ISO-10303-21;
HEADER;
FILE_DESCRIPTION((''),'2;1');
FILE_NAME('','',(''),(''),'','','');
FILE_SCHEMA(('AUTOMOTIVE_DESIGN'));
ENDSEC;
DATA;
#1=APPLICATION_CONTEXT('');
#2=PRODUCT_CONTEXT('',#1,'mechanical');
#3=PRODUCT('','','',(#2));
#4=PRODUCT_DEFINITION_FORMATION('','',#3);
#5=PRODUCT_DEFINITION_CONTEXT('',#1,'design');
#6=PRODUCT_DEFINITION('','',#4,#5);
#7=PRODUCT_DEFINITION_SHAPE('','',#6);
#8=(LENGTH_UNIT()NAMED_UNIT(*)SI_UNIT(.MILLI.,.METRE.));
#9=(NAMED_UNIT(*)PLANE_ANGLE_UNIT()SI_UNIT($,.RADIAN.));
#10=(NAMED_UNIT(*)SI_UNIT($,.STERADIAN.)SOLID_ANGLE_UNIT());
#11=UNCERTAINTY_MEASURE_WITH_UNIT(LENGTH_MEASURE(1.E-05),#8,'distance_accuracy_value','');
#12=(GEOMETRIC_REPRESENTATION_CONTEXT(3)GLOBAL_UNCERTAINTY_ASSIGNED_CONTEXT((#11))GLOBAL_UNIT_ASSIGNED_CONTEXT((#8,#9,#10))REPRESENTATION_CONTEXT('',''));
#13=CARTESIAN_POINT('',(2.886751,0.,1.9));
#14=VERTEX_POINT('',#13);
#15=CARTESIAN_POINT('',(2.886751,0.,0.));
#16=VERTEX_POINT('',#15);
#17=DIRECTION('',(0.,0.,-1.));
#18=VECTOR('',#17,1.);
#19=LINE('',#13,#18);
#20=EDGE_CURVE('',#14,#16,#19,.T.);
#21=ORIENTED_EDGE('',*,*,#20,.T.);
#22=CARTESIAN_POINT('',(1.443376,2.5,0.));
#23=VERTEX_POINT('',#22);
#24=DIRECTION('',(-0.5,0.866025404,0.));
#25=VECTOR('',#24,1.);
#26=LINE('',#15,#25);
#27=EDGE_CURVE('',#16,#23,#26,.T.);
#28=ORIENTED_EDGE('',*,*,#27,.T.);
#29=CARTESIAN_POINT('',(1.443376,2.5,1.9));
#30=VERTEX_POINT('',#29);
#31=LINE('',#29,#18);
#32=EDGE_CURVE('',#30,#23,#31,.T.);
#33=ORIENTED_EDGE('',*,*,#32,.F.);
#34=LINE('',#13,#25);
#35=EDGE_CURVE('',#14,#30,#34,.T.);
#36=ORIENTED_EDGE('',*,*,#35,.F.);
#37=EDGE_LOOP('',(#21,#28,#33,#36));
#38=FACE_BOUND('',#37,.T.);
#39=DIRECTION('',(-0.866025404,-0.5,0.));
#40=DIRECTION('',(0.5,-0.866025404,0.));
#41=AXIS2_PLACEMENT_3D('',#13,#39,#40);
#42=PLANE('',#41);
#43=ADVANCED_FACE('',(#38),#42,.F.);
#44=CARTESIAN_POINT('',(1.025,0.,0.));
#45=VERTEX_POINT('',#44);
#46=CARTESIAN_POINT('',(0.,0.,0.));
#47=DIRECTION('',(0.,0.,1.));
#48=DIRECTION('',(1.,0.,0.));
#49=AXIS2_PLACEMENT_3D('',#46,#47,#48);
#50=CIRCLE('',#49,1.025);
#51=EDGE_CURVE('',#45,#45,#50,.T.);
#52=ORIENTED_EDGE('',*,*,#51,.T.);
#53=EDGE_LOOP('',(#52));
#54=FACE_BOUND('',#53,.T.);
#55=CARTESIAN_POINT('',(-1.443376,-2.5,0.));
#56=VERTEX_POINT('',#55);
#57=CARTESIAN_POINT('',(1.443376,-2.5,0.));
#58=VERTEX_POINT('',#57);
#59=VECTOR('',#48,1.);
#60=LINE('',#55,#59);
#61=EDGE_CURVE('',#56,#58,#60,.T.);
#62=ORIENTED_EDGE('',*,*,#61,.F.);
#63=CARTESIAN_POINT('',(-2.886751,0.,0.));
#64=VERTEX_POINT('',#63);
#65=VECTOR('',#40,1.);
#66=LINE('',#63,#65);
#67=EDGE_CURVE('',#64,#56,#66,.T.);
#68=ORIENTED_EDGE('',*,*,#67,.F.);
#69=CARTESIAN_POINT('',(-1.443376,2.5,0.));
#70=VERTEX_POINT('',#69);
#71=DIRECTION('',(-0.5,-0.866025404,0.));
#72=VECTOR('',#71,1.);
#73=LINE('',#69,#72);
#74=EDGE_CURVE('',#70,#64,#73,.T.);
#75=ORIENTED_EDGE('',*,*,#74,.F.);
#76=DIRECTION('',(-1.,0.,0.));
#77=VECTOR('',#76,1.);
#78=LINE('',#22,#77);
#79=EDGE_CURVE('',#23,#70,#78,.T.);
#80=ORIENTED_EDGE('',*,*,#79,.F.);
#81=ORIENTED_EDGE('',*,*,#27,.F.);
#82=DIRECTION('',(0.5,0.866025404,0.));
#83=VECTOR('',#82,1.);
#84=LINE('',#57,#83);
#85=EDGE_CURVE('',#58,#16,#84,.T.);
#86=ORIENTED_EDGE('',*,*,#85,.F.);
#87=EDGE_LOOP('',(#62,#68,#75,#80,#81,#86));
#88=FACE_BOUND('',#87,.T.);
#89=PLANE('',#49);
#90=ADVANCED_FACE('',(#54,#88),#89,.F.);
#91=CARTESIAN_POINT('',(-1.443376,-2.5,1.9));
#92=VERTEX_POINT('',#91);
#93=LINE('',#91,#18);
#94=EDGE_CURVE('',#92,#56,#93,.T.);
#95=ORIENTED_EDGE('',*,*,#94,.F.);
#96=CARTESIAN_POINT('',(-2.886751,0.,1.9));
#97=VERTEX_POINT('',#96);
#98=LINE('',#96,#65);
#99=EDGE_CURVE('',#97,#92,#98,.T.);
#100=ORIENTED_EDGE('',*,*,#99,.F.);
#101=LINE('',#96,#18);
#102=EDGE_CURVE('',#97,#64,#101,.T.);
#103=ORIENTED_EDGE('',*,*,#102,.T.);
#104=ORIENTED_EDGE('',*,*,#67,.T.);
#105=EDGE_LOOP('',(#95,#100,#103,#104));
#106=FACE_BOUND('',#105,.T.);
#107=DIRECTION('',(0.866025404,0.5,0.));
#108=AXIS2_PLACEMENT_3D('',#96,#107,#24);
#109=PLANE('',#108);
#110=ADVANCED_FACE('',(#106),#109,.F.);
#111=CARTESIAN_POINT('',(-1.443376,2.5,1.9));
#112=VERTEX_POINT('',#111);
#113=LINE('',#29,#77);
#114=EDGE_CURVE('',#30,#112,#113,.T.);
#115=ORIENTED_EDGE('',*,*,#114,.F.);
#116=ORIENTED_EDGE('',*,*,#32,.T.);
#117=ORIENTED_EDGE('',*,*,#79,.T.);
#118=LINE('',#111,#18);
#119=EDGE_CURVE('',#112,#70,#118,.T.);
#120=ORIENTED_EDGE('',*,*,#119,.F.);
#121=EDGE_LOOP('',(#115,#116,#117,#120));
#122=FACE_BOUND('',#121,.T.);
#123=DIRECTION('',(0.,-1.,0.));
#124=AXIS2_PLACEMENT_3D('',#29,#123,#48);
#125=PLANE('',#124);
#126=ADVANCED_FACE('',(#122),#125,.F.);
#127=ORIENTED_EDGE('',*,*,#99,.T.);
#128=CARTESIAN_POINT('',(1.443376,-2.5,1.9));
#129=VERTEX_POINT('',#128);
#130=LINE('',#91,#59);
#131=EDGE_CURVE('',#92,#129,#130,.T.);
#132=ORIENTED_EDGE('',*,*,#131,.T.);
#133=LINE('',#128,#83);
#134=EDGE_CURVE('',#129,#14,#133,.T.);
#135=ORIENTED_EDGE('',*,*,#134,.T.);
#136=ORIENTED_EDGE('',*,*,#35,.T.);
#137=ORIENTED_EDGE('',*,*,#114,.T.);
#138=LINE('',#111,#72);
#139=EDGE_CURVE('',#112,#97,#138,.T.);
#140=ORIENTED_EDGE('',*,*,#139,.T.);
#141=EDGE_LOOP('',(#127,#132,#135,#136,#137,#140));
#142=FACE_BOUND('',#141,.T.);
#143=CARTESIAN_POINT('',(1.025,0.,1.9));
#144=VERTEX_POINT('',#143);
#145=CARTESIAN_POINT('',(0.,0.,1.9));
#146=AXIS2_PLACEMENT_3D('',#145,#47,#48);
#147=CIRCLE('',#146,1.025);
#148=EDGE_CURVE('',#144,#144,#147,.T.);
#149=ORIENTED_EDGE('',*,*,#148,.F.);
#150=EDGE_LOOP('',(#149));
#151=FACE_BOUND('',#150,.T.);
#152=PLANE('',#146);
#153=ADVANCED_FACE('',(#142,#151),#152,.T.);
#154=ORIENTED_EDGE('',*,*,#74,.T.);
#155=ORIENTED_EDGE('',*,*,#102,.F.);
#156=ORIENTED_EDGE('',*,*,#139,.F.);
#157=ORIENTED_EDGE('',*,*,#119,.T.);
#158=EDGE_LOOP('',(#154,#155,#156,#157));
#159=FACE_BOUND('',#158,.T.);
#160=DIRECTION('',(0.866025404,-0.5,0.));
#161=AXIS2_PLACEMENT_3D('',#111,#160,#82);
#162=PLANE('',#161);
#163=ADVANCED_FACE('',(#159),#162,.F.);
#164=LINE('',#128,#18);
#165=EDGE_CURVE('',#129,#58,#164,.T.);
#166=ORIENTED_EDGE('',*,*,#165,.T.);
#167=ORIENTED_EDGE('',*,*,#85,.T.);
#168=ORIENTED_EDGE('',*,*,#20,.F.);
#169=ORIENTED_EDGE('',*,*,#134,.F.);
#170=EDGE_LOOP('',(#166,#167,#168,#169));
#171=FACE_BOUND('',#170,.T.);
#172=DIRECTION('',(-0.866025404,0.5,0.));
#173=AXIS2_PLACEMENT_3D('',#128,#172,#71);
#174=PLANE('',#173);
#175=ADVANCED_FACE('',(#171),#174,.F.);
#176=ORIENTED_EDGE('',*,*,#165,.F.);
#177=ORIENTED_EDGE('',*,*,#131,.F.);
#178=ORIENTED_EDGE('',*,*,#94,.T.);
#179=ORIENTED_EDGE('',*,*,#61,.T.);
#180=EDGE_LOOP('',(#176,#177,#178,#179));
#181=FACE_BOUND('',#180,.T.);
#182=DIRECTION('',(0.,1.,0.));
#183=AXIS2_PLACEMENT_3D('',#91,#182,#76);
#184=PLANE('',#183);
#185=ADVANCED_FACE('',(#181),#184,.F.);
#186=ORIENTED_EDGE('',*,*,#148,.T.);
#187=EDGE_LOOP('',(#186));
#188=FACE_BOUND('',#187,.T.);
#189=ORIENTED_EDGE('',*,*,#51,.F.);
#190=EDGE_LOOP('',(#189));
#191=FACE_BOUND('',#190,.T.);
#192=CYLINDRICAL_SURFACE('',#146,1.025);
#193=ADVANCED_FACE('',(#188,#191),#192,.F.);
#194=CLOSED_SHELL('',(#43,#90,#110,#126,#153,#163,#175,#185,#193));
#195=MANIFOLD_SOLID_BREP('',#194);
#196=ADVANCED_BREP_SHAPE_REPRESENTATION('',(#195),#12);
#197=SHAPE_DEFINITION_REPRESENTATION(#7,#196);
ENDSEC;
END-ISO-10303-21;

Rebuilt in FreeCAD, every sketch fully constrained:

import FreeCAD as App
import Part
import Sketcher

V = App.Vector
Q = App.Units.Quantity

doc = App.newDocument("Part")
body = doc.addObject("PartDesign::Body", "Body")

sketch1 = body.newObject("Sketcher::SketchObject", "Sketch")
sketch1.AttachmentSupport = (doc.getObject("XY_Plane"), [""])
sketch1.MapMode = "FlatFace"
sketch1.addGeometry(Part.LineSegment(V(-2.9, 0, 0), V(-1.4, -2.5, 0)), False)
sketch1.addGeometry(Part.LineSegment(V(-1.4, -2.5, 0), V(1.4, -2.5, 0)), False)
sketch1.addGeometry(Part.LineSegment(V(1.4, -2.5, 0), V(2.9, 0, 0)), False)
sketch1.addGeometry(Part.LineSegment(V(2.9, 0, 0), V(1.4, 2.5, 0)), False)
sketch1.addGeometry(Part.LineSegment(V(1.4, 2.5, 0), V(-1.4, 2.5, 0)), False)
sketch1.addGeometry(Part.LineSegment(V(-1.4, 2.5, 0), V(-2.9, 0, 0)), False)
sketch1.addConstraint(Sketcher.Constraint("Coincident", 0, 2, 1, 1))
sketch1.addConstraint(Sketcher.Constraint("Coincident", 1, 2, 2, 1))
sketch1.addConstraint(Sketcher.Constraint("Coincident", 2, 2, 3, 1))
sketch1.addConstraint(Sketcher.Constraint("Coincident", 3, 2, 4, 1))
sketch1.addConstraint(Sketcher.Constraint("Coincident", 4, 2, 5, 1))
sketch1.addConstraint(Sketcher.Constraint("Coincident", 5, 2, 0, 1))
sketch1.addConstraint(Sketcher.Constraint("Horizontal", 1))
sketch1.addConstraint(Sketcher.Constraint("Horizontal", 4))
sketch1.addConstraint(Sketcher.Constraint("Symmetric", 0, 2, 3, 2, -1, 1))
sketch1.addConstraint(Sketcher.Constraint("Symmetric", 2, 2, 5, 2, -1, 1))
sketch1.addConstraint(Sketcher.Constraint("PointOnObject", 2, 2, -1))
sketch1.addConstraint(Sketcher.Constraint("Parallel", 2, 5))
sketch1.addConstraint(Sketcher.Constraint("Vertical", 1, 2, 3, 2))
sketch1.addConstraint(Sketcher.Constraint("Angle", 0, Q("-60 deg")))
sketch1.addConstraint(Sketcher.Constraint("DistanceY", 1, 2, 3, 2, Q("5 mm")))
sketch1.addConstraint(Sketcher.Constraint("DistanceX", 1, 1, 1, 2, Q("2.886751 mm")))
pad1 = body.newObject("PartDesign::Pad", "Pad")
pad1.Profile = sketch1
pad1.Length = 1.9

sketch2 = body.newObject("Sketcher::SketchObject", "Sketch001")
sketch2.AttachmentSupport = (doc.getObject("XY_Plane"), [""])
sketch2.MapMode = "FlatFace"
sketch2.AttachmentOffset = App.Placement(V(0, 0, 1.9), App.Rotation())
sketch2.addGeometry(Part.Circle(V(0, 0, 0), V(0, 0, 1), 1), False)
sketch2.addConstraint(Sketcher.Constraint("Coincident", 0, 3, -1, 1))
sketch2.addConstraint(Sketcher.Constraint("Diameter", 0, Q("2.05 mm")))
doc.recompute()
hole = body.newObject("PartDesign::Hole", "Hole")
hole.Profile = sketch2
hole.ThreadType = "None"
hole.Diameter = 2.05
hole.DepthType = "ThroughAll"

doc.recompute()
